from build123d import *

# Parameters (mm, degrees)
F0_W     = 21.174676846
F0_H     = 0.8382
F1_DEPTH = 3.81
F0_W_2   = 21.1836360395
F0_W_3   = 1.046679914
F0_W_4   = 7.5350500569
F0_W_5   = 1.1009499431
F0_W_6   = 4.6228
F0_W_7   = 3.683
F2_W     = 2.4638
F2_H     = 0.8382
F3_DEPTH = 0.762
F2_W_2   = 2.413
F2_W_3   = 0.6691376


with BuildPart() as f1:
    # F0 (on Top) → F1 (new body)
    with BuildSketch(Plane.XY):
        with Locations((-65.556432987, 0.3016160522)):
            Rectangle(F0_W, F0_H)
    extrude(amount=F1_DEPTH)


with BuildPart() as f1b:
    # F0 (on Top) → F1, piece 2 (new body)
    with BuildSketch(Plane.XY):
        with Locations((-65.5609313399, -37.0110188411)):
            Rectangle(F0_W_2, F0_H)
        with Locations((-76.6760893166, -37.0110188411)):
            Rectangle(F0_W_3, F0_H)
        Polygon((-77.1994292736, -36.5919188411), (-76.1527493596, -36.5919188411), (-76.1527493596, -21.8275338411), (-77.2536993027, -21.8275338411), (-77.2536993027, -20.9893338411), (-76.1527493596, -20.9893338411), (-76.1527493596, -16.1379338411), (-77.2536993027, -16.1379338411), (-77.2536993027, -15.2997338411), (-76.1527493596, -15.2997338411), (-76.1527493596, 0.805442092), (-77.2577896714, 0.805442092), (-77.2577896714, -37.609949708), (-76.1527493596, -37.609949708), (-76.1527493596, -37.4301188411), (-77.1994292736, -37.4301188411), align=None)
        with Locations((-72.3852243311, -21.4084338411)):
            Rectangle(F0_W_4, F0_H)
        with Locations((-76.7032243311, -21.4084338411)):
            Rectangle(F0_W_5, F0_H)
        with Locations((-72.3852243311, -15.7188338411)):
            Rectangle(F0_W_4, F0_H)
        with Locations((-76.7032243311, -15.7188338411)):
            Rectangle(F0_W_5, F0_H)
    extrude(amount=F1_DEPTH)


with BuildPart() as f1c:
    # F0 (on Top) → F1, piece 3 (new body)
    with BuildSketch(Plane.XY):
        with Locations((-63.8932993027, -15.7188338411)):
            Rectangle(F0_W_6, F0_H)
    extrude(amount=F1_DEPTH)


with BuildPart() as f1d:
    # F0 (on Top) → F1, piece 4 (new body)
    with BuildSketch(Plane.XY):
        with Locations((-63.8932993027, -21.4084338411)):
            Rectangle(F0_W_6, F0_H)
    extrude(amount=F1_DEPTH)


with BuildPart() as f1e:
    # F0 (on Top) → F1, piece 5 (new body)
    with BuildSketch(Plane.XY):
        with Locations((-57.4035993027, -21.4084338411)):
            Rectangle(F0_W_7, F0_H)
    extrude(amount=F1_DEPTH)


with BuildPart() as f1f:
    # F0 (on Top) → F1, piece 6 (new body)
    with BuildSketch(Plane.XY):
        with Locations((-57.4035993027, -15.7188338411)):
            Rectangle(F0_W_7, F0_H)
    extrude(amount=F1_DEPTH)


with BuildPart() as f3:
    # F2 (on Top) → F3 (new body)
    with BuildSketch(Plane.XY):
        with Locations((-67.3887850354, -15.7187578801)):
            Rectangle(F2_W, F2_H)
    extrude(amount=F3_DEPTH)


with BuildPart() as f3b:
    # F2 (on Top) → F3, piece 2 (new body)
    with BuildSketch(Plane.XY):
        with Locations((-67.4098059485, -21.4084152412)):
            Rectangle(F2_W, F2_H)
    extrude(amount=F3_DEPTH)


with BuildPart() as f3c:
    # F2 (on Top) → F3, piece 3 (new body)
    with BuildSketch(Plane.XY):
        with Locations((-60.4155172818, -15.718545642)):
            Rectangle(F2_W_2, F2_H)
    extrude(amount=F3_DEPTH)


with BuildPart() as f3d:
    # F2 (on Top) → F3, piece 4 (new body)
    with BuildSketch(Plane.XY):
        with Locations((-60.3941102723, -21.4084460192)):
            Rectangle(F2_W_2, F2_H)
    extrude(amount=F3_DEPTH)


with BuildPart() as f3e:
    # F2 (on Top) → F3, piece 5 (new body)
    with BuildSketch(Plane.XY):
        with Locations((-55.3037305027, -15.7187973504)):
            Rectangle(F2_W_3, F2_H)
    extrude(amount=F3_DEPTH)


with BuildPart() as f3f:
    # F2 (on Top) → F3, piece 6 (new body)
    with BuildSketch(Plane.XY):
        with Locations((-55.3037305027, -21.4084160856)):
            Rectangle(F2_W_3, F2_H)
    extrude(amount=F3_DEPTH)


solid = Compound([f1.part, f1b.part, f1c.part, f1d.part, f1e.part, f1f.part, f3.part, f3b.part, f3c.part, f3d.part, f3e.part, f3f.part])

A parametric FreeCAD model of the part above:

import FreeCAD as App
import Part
import Sketcher
Q = App.Units.Quantity

doc = App.newDocument("Part")
params = doc.addObject("Spreadsheet::Sheet", "Params")
for row, (alias, value) in enumerate([
    ("sketch1_height", "0.033 in"),
    ("pad1_length", "0.15 in"),
    ("sketch2_height", "0.033 in"),
    ("sketch2_height2", "0.191 in"),
    ("pad2_length", "0.15 in"),
    ("sketch3_width", "0.182 in"),
    ("sketch3_height", "0.033 in"),
    ("pad3_length", "0.15 in"),
    ("sketch4_width", "0.182 in"),
    ("sketch4_height", "0.033 in"),
    ("pad4_length", "0.15 in"),
    ("sketch5_width", "0.145 in"),
    ("sketch5_height", "0.033 in"),
    ("pad5_length", "0.15 in"),
    ("sketch6_width", "0.145 in"),
    ("sketch6_height", "0.033 in"),
    ("pad6_length", "0.15 in"),
    ("sketch7_width", "0.097 in"),
    ("sketch7_height", "0.033 in"),
    ("pad7_length", "0.03 in"),
    ("sketch8_width", "0.097 in"),
    ("sketch8_height", "0.033 in"),
    ("pad8_length", "0.03 in"),
    ("sketch9_width", "0.095 in"),
    ("sketch9_height", "0.033 in"),
    ("pad9_length", "0.03 in"),
    ("sketch10_width", "0.095 in"),
    ("sketch10_height", "0.033 in"),
    ("pad10_length", "0.03 in"),
    ("sketch11_height", "0.033 in"),
    ("pad11_length", "0.03 in"),
    ("sketch12_height", "0.033 in"),
    ("pad12_length", "0.03 in"),
], start=1):
    params.set(f"A{row}", alias)
    params.set(f"B{row}", "=" + value)
    params.setAlias(f"B{row}", alias)

body = doc.addObject("PartDesign::Body", "Body")

# Sketch on XY plane
sketch1 = body.newObject("Sketcher::SketchObject", "Sketch")
sketch1.AttachmentSupport = (doc.getObject("XY_Plane"), [""])
sketch1.MapMode = "FlatFace"
sketch1.addGeometry([
    Part.LineSegment(App.Vector(-76.1, 0.7, 0), App.Vector(-76.1, -0.1, 0)),
    Part.LineSegment(App.Vector(-76.1, -0.1, 0), App.Vector(-55, -0.1, 0)),
    Part.LineSegment(App.Vector(-55, -0.1, 0), App.Vector(-55, 0.7, 0)),
    Part.LineSegment(App.Vector(-55, 0.7, 0), App.Vector(-76.1, 0.7, 0)),
], False)
sketch1.addConstraint([
    Sketcher.Constraint("Coincident", 0, 2, 1, 1),
    Sketcher.Constraint("Coincident", 1, 2, 2, 1),
    Sketcher.Constraint("Coincident", 2, 2, 3, 1),
    Sketcher.Constraint("Coincident", 3, 2, 0, 1),
    Sketcher.Constraint("Vertical", 0),
    Sketcher.Constraint("Horizontal", 1),
    Sketcher.Constraint("Vertical", 2),
    Sketcher.Constraint("Horizontal", 3),
    Sketcher.Constraint("DistanceY", 0, 2, 0, 1, Q("0.033 in")),
    Sketcher.Constraint("DistanceX", 1, 1, 1, 2, Q("21.174677 mm")),
    Sketcher.Constraint("DistanceX", 0, 2, -1, 1, Q("76.143771 mm")),
    Sketcher.Constraint("DistanceY", 0, 2, -1, 1, Q("0.117484 mm")),
])
sketch1.setExpression("Constraints[8]", "Params.sketch1_height")
pad1 = body.newObject("PartDesign::Pad", "Pad")
pad1.Profile = sketch1
pad1.setExpression("Length", "Params.pad1_length")
body2 = doc.addObject("PartDesign::Body", "Body001")

# Sketch on XY plane
sketch2 = body2.newObject("Sketcher::SketchObject", "Sketch001")
sketch2.AttachmentSupport = (doc.getObject("XY_Plane001"), [""])
sketch2.MapMode = "FlatFace"
sketch2.addGeometry([
    Part.LineSegment(App.Vector(-54.97, -37.43, 0), App.Vector(-54.97, -36.59, 0)),  # 0
    Part.LineSegment(App.Vector(-54.97, -36.59, 0), App.Vector(-76.15, -36.59, 0)),  # 1
    Part.LineSegment(App.Vector(-76.15, -36.59, 0), App.Vector(-76.15, -21.83, 0)),  # 2
    Part.LineSegment(App.Vector(-76.15, -21.83, 0), App.Vector(-68.62, -21.83, 0)),  # 3
    Part.LineSegment(App.Vector(-68.62, -21.83, 0), App.Vector(-68.62, -20.99, 0)),  # 4
    Part.LineSegment(App.Vector(-68.62, -20.99, 0), App.Vector(-76.15, -20.99, 0)),  # 5
    Part.LineSegment(App.Vector(-76.15, -20.99, 0), App.Vector(-76.15, -16.14, 0)),  # 6
    Part.LineSegment(App.Vector(-76.15, -16.14, 0), App.Vector(-68.62, -16.14, 0)),  # 7
    Part.LineSegment(App.Vector(-68.62, -16.14, 0), App.Vector(-68.62, -15.3, 0)),  # 8
    Part.LineSegment(App.Vector(-68.62, -15.3, 0), App.Vector(-76.15, -15.3, 0)),  # 9
    Part.LineSegment(App.Vector(-76.15, -15.3, 0), App.Vector(-76.15, 0.81, 0)),  # 10
    Part.LineSegment(App.Vector(-76.15, 0.81, 0), App.Vector(-77.26, 0.81, 0)),  # 11
    Part.LineSegment(App.Vector(-77.26, 0.81, 0), App.Vector(-77.26, -37.61, 0)),  # 12
    Part.LineSegment(App.Vector(-77.26, -37.61, 0), App.Vector(-76.15, -37.61, 0)),  # 13
    Part.LineSegment(App.Vector(-76.15, -37.61, 0), App.Vector(-76.15, -37.43, 0)),  # 14
    Part.LineSegment(App.Vector(-76.15, -37.43, 0), App.Vector(-54.97, -37.43, 0)),  # 15
], False)
sketch2.addConstraint([
    Sketcher.Constraint("Coincident", 0, 2, 1, 1),
    Sketcher.Constraint("Coincident", 1, 2, 2, 1),
    Sketcher.Constraint("Coincident", 2, 2, 3, 1),
    Sketcher.Constraint("Coincident", 3, 2, 4, 1),
    Sketcher.Constraint("Coincident", 4, 2, 5, 1),
    Sketcher.Constraint("Coincident", 5, 2, 6, 1),
    Sketcher.Constraint("Coincident", 6, 2, 7, 1),
    Sketcher.Constraint("Coincident", 7, 2, 8, 1),
    Sketcher.Constraint("Coincident", 8, 2, 9, 1),
    Sketcher.Constraint("Coincident", 9, 2, 10, 1),
    Sketcher.Constraint("Coincident", 10, 2, 11, 1),
    Sketcher.Constraint("Coincident", 11, 2, 12, 1),
    Sketcher.Constraint("Coincident", 12, 2, 13, 1),
    Sketcher.Constraint("Coincident", 13, 2, 14, 1),
    Sketcher.Constraint("Coincident", 14, 2, 15, 1),
    Sketcher.Constraint("Coincident", 15, 2, 0, 1),
    Sketcher.Constraint("Vertical", 0),
    Sketcher.Constraint("Horizontal", 1),
    Sketcher.Constraint("Vertical", 2),
    Sketcher.Constraint("Horizontal", 3),
    Sketcher.Constraint("Vertical", 4),
    Sketcher.Constraint("Horizontal", 5),
    Sketcher.Constraint("Vertical", 6),
    Sketcher.Constraint("Horizontal", 7),
    Sketcher.Constraint("Vertical", 8),
    Sketcher.Constraint("Horizontal", 9),
    Sketcher.Constraint("Vertical", 10),
    Sketcher.Constraint("Horizontal", 11),
    Sketcher.Constraint("Vertical", 12),
    Sketcher.Constraint("Horizontal", 13),
    Sketcher.Constraint("Vertical", 14),
    Sketcher.Constraint("Horizontal", 15),
    Sketcher.Constraint("Vertical", 2, 2, 5, 2),
    Sketcher.Constraint("Vertical", 4, 2, 7, 2),
    Sketcher.Constraint("Vertical", 6, 2, 9, 2),
    Sketcher.Constraint("Vertical", 10, 2, 13, 2),
    Sketcher.Constraint("Equal", 0, 4),
    Sketcher.Constraint("Equal", 4, 8),
    Sketcher.Constraint("DistanceY", 0, 1, 0, 2, Q("0.033 in")),
    Sketcher.Constraint("DistanceY", 6, 1, 6, 2, Q("0.191 in")),
    Sketcher.Constraint("DistanceX", 3, 1, 3, 2, Q("7.53505 mm")),
    Sketcher.Constraint("DistanceX", 11, 2, 11, 1, Q("1.10504 mm")),
    Sketcher.Constraint("DistanceY", 12, 2, 12, 1, Q("38.415392 mm")),
    Sketcher.Constraint("DistanceY", 14, 1, 14, 2, Q("0.179831 mm")),
    Sketcher.Constraint("DistanceX", 3, 2, -1, 1, Q("68.617699 mm")),
    Sketcher.Constraint("DistanceX", 1, 2, 1, 1, Q("21.183636 mm")),
    Sketcher.Constraint("DistanceY", 2, 1, 2, 2, Q("14.764385 mm")),
    Sketcher.Constraint("DistanceY", 0, 2, -1, 1, Q("36.591919 mm")),
])
sketch2.setExpression("Constraints[38]", "Params.sketch2_height")
sketch2.setExpression("Constraints[39]", "Params.sketch2_height2")
pad2 = body2.newObject("PartDesign::Pad", "Pad001")
pad2.Profile = sketch2
pad2.setExpression("Length", "Params.pad2_length")
body3 = doc.addObject("PartDesign::Body", "Body002")

# Sketch on XY plane
sketch3 = body3.newObject("Sketcher::SketchObject", "Sketch002")
sketch3.AttachmentSupport = (doc.getObject("XY_Plane002"), [""])
sketch3.MapMode = "FlatFace"
sketch3.addGeometry([
    Part.LineSegment(App.Vector(-66.2, -15.3, 0), App.Vector(-66.2, -16.1, 0)),
    Part.LineSegment(App.Vector(-66.2, -16.1, 0), App.Vector(-61.6, -16.1, 0)),
    Part.LineSegment(App.Vector(-61.6, -16.1, 0), App.Vector(-61.6, -15.3, 0)),
    Part.LineSegment(App.Vector(-61.6, -15.3, 0), App.Vector(-66.2, -15.3, 0)),
], False)
sketch3.addConstraint([
    Sketcher.Constraint("Coincident", 0, 2, 1, 1),
    Sketcher.Constraint("Coincident", 1, 2, 2, 1),
    Sketcher.Constraint("Coincident", 2, 2, 3, 1),
    Sketcher.Constraint("Coincident", 3, 2, 0, 1),
    Sketcher.Constraint("Vertical", 0),
    Sketcher.Constraint("Horizontal", 1),
    Sketcher.Constraint("Vertical", 2),
    Sketcher.Constraint("Horizontal", 3),
    Sketcher.Constraint("DistanceX", 1, 1, 1, 2, Q("0.182 in")),
    Sketcher.Constraint("DistanceY", 0, 2, 0, 1, Q("0.033 in")),
    Sketcher.Constraint("DistanceX", 0, 2, -1, 1, Q("66.204699 mm")),
    Sketcher.Constraint("DistanceY", 0, 2, -1, 1, Q("16.137934 mm")),
])
sketch3.setExpression("Constraints[8]", "Params.sketch3_width")
sketch3.setExpression("Constraints[9]", "Params.sketch3_height")
pad3 = body3.newObject("PartDesign::Pad", "Pad002")
pad3.Profile = sketch3
pad3.setExpression("Length", "Params.pad3_length")
body4 = doc.addObject("PartDesign::Body", "Body003")

# Sketch on XY plane
sketch4 = body4.newObject("Sketcher::SketchObject", "Sketch003")
sketch4.AttachmentSupport = (doc.getObject("XY_Plane003"), [""])
sketch4.MapMode = "FlatFace"
sketch4.addGeometry([
    Part.LineSegment(App.Vector(-66.2, -21, 0), App.Vector(-66.2, -21.8, 0)),
    Part.LineSegment(App.Vector(-66.2, -21.8, 0), App.Vector(-61.6, -21.8, 0)),
    Part.LineSegment(App.Vector(-61.6, -21.8, 0), App.Vector(-61.6, -21, 0)),
    Part.LineSegment(App.Vector(-61.6, -21, 0), App.Vector(-66.2, -21, 0)),
], False)
sketch4.addConstraint([
    Sketcher.Constraint("Coincident", 0, 2, 1, 1),
    Sketcher.Constraint("Coincident", 1, 2, 2, 1),
    Sketcher.Constraint("Coincident", 2, 2, 3, 1),
    Sketcher.Constraint("Coincident", 3, 2, 0, 1),
    Sketcher.Constraint("Vertical", 0),
    Sketcher.Constraint("Horizontal", 1),
    Sketcher.Constraint("Vertical", 2),
    Sketcher.Constraint("Horizontal", 3),
    Sketcher.Constraint("DistanceX", 1, 1, 1, 2, Q("0.182 in")),
    Sketcher.Constraint("DistanceY", 0, 2, 0, 1, Q("0.033 in")),
    Sketcher.Constraint("DistanceX", 0, 2, -1, 1, Q("66.204699 mm")),
    Sketcher.Constraint("DistanceY", 0, 2, -1, 1, Q("21.827534 mm")),
])
sketch4.setExpression("Constraints[8]", "Params.sketch4_width")
sketch4.setExpression("Constraints[9]", "Params.sketch4_height")
pad4 = body4.newObject("PartDesign::Pad", "Pad003")
pad4.Profile = sketch4
pad4.setExpression("Length", "Params.pad4_length")
body5 = doc.addObject("PartDesign::Body", "Body004")

# Sketch on XY plane
sketch5 = body5.newObject("Sketcher::SketchObject", "Sketch004")
sketch5.AttachmentSupport = (doc.getObject("XY_Plane004"), [""])
sketch5.MapMode = "FlatFace"
sketch5.addGeometry([
    Part.LineSegment(App.Vector(-59.2, -21, 0), App.Vector(-59.2, -21.8, 0)),
    Part.LineSegment(App.Vector(-59.2, -21.8, 0), App.Vector(-55.6, -21.8, 0)),
    Part.LineSegment(App.Vector(-55.6, -21.8, 0), App.Vector(-55.6, -21, 0)),
    Part.LineSegment(App.Vector(-55.6, -21, 0), App.Vector(-59.2, -21, 0)),
], False)
sketch5.addConstraint([
    Sketcher.Constraint("Coincident", 0, 2, 1, 1),
    Sketcher.Constraint("Coincident", 1, 2, 2, 1),
    Sketcher.Constraint("Coincident", 2, 2, 3, 1),
    Sketcher.Constraint("Coincident", 3, 2, 0, 1),
    Sketcher.Constraint("Vertical", 0),
    Sketcher.Constraint("Horizontal", 1),
    Sketcher.Constraint("Vertical", 2),
    Sketcher.Constraint("Horizontal", 3),
    Sketcher.Constraint("DistanceX", 1, 1, 1, 2, Q("0.145 in")),
    Sketcher.Constraint("DistanceY", 0, 2, 0, 1, Q("0.033 in")),
    Sketcher.Constraint("DistanceX", 0, 2, -1, 1, Q("59.245099 mm")),
    Sketcher.Constraint("DistanceY", 0, 2, -1, 1, Q("21.827534 mm")),
])
sketch5.setExpression("Constraints[8]", "Params.sketch5_width")
sketch5.setExpression("Constraints[9]", "Params.sketch5_height")
pad5 = body5.newObject("PartDesign::Pad", "Pad004")
pad5.Profile = sketch5
pad5.setExpression("Length", "Params.pad5_length")
body6 = doc.addObject("PartDesign::Body", "Body005")

# Sketch on XY plane
sketch6 = body6.newObject("Sketcher::SketchObject", "Sketch005")
sketch6.AttachmentSupport = (doc.getObject("XY_Plane005"), [""])
sketch6.MapMode = "FlatFace"
sketch6.addGeometry([
    Part.LineSegment(App.Vector(-59.2, -15.3, 0), App.Vector(-59.2, -16.1, 0)),
    Part.LineSegment(App.Vector(-59.2, -16.1, 0), App.Vector(-55.6, -16.1, 0)),
    Part.LineSegment(App.Vector(-55.6, -16.1, 0), App.Vector(-55.6, -15.3, 0)),
    Part.LineSegment(App.Vector(-55.6, -15.3, 0), App.Vector(-59.2, -15.3, 0)),
], False)
sketch6.addConstraint([
    Sketcher.Constraint("Coincident", 0, 2, 1, 1),
    Sketcher.Constraint("Coincident", 1, 2, 2, 1),
    Sketcher.Constraint("Coincident", 2, 2, 3, 1),
    Sketcher.Constraint("Coincident", 3, 2, 0, 1),
    Sketcher.Constraint("Vertical", 0),
    Sketcher.Constraint("Horizontal", 1),
    Sketcher.Constraint("Vertical", 2),
    Sketcher.Constraint("Horizontal", 3),
    Sketcher.Constraint("DistanceX", 1, 1, 1, 2, Q("0.145 in")),
    Sketcher.Constraint("DistanceY", 0, 2, 0, 1, Q("0.033 in")),
    Sketcher.Constraint("DistanceX", 0, 2, -1, 1, Q("59.245099 mm")),
    Sketcher.Constraint("DistanceY", 0, 2, -1, 1, Q("16.137934 mm")),
])
sketch6.setExpression("Constraints[8]", "Params.sketch6_width")
sketch6.setExpression("Constraints[9]", "Params.sketch6_height")
pad6 = body6.newObject("PartDesign::Pad", "Pad005")
pad6.Profile = sketch6
pad6.setExpression("Length", "Params.pad6_length")
body7 = doc.addObject("PartDesign::Body", "Body006")

# Sketch on XY plane
sketch7 = body7.newObject("Sketcher::SketchObject", "Sketch006")
sketch7.AttachmentSupport = (doc.getObject("XY_Plane006"), [""])
sketch7.MapMode = "FlatFace"
sketch7.addGeometry([
    Part.LineSegment(App.Vector(-68.6, -15.3, 0), App.Vector(-68.6, -16.1, 0)),
    Part.LineSegment(App.Vector(-68.6, -16.1, 0), App.Vector(-66.2, -16.1, 0)),
    Part.LineSegment(App.Vector(-66.2, -16.1, 0), App.Vector(-66.2, -15.3, 0)),
    Part.LineSegment(App.Vector(-66.2, -15.3, 0), App.Vector(-68.6, -15.3, 0)),
], False)
sketch7.addConstraint([
    Sketcher.Constraint("Coincident", 0, 2, 1, 1),
    Sketcher.Constraint("Coincident", 1, 2, 2, 1),
    Sketcher.Constraint("Coincident", 2, 2, 3, 1),
    Sketcher.Constraint("Coincident", 3, 2, 0, 1),
    Sketcher.Constraint("Vertical", 0),
    Sketcher.Constraint("Horizontal", 1),
    Sketcher.Constraint("Vertical", 2),
    Sketcher.Constraint("Horizontal", 3),
    Sketcher.Constraint("DistanceX", 1, 1, 1, 2, Q("0.097 in")),
    Sketcher.Constraint("DistanceY", 0, 2, 0, 1, Q("0.033 in")),
    Sketcher.Constraint("DistanceX", 0, 2, -1, 1, Q("68.620685 mm")),
    Sketcher.Constraint("DistanceY", 0, 2, -1, 1, Q("16.137858 mm")),
])
sketch7.setExpression("Constraints[8]", "Params.sketch7_width")
sketch7.setExpression("Constraints[9]", "Params.sketch7_height")
pad7 = body7.newObject("PartDesign::Pad", "Pad006")
pad7.Profile = sketch7
pad7.setExpression("Length", "Params.pad7_length")
body8 = doc.addObject("PartDesign::Body", "Body007")

# Sketch on XY plane
sketch8 = body8.newObject("Sketcher::SketchObject", "Sketch007")
sketch8.AttachmentSupport = (doc.getObject("XY_Plane007"), [""])
sketch8.MapMode = "FlatFace"
sketch8.addGeometry([
    Part.LineSegment(App.Vector(-68.6, -21, 0), App.Vector(-68.6, -21.8, 0)),
    Part.LineSegment(App.Vector(-68.6, -21.8, 0), App.Vector(-66.2, -21.8, 0)),
    Part.LineSegment(App.Vector(-66.2, -21.8, 0), App.Vector(-66.2, -21, 0)),
    Part.LineSegment(App.Vector(-66.2, -21, 0), App.Vector(-68.6, -21, 0)),
], False)
sketch8.addConstraint([
    Sketcher.Constraint("Coincident", 0, 2, 1, 1),
    Sketcher.Constraint("Coincident", 1, 2, 2, 1),
    Sketcher.Constraint("Coincident", 2, 2, 3, 1),
    Sketcher.Constraint("Coincident", 3, 2, 0, 1),
    Sketcher.Constraint("Vertical", 0),
    Sketcher.Constraint("Horizontal", 1),
    Sketcher.Constraint("Vertical", 2),
    Sketcher.Constraint("Horizontal", 3),
    Sketcher.Constraint("DistanceX", 1, 1, 1, 2, Q("0.097 in")),
    Sketcher.Constraint("DistanceY", 0, 2, 0, 1, Q("0.033 in")),
    Sketcher.Constraint("DistanceX", 0, 2, -1, 1, Q("68.641706 mm")),
    Sketcher.Constraint("DistanceY", 0, 2, -1, 1, Q("21.827515 mm")),
])
sketch8.setExpression("Constraints[8]", "Params.sketch8_width")
sketch8.setExpression("Constraints[9]", "Params.sketch8_height")
pad8 = body8.newObject("PartDesign::Pad", "Pad007")
pad8.Profile = sketch8
pad8.setExpression("Length", "Params.pad8_length")
body9 = doc.addObject("PartDesign::Body", "Body008")

# Sketch on XY plane
sketch9 = body9.newObject("Sketcher::SketchObject", "Sketch008")
sketch9.AttachmentSupport = (doc.getObject("XY_Plane008"), [""])
sketch9.MapMode = "FlatFace"
sketch9.addGeometry([
    Part.LineSegment(App.Vector(-61.6, -15.3, 0), App.Vector(-61.6, -16.1, 0)),
    Part.LineSegment(App.Vector(-61.6, -16.1, 0), App.Vector(-59.2, -16.1, 0)),
    Part.LineSegment(App.Vector(-59.2, -16.1, 0), App.Vector(-59.2, -15.3, 0)),
    Part.LineSegment(App.Vector(-59.2, -15.3, 0), App.Vector(-61.6, -15.3, 0)),
], False)
sketch9.addConstraint([
    Sketcher.Constraint("Coincident", 0, 2, 1, 1),
    Sketcher.Constraint("Coincident", 1, 2, 2, 1),
    Sketcher.Constraint("Coincident", 2, 2, 3, 1),
    Sketcher.Constraint("Coincident", 3, 2, 0, 1),
    Sketcher.Constraint("Vertical", 0),
    Sketcher.Constraint("Horizontal", 1),
    Sketcher.Constraint("Vertical", 2),
    Sketcher.Constraint("Horizontal", 3),
    Sketcher.Constraint("DistanceX", 1, 1, 1, 2, Q("0.095 in")),
    Sketcher.Constraint("DistanceY", 0, 2, 0, 1, Q("0.033 in")),
    Sketcher.Constraint("DistanceX", 0, 2, -1, 1, Q("61.622017 mm")),
    Sketcher.Constraint("DistanceY", 0, 2, -1, 1, Q("16.137646 mm")),
])
sketch9.setExpression("Constraints[8]", "Params.sketch9_width")
sketch9.setExpression("Constraints[9]", "Params.sketch9_height")
pad9 = body9.newObject("PartDesign::Pad", "Pad008")
pad9.Profile = sketch9
pad9.setExpression("Length", "Params.pad9_length")
body10 = doc.addObject("PartDesign::Body", "Body009")

# Sketch on XY plane
sketch10 = body10.newObject("Sketcher::SketchObject", "Sketch009")
sketch10.AttachmentSupport = (doc.getObject("XY_Plane009"), [""])
sketch10.MapMode = "FlatFace"
sketch10.addGeometry([
    Part.LineSegment(App.Vector(-61.6, -21, 0), App.Vector(-61.6, -21.8, 0)),
    Part.LineSegment(App.Vector(-61.6, -21.8, 0), App.Vector(-59.2, -21.8, 0)),
    Part.LineSegment(App.Vector(-59.2, -21.8, 0), App.Vector(-59.2, -21, 0)),
    Part.LineSegment(App.Vector(-59.2, -21, 0), App.Vector(-61.6, -21, 0)),
], False)
sketch10.addConstraint([
    Sketcher.Constraint("Coincident", 0, 2, 1, 1),
    Sketcher.Constraint("Coincident", 1, 2, 2, 1),
    Sketcher.Constraint("Coincident", 2, 2, 3, 1),
    Sketcher.Constraint("Coincident", 3, 2, 0, 1),
    Sketcher.Constraint("Vertical", 0),
    Sketcher.Constraint("Horizontal", 1),
    Sketcher.Constraint("Vertical", 2),
    Sketcher.Constraint("Horizontal", 3),
    Sketcher.Constraint("DistanceX", 1, 1, 1, 2, Q("0.095 in")),
    Sketcher.Constraint("DistanceY", 0, 2, 0, 1, Q("0.033 in")),
    Sketcher.Constraint("DistanceX", 0, 2, -1, 1, Q("61.60061 mm")),
    Sketcher.Constraint("DistanceY", 0, 2, -1, 1, Q("21.827546 mm")),
])
sketch10.setExpression("Constraints[8]", "Params.sketch10_width")
sketch10.setExpression("Constraints[9]", "Params.sketch10_height")
pad10 = body10.newObject("PartDesign::Pad", "Pad009")
pad10.Profile = sketch10
pad10.setExpression("Length", "Params.pad10_length")
body11 = doc.addObject("PartDesign::Body", "Body010")

# Sketch on XY plane
sketch11 = body11.newObject("Sketcher::SketchObject", "Sketch010")
sketch11.AttachmentSupport = (doc.getObject("XY_Plane010"), [""])
sketch11.MapMode = "FlatFace"
sketch11.addGeometry([
    Part.LineSegment(App.Vector(-55.6, -15.3, 0), App.Vector(-55.6, -16.1, 0)),
    Part.LineSegment(App.Vector(-55.6, -16.1, 0), App.Vector(-55, -16.1, 0)),
    Part.LineSegment(App.Vector(-55, -16.1, 0), App.Vector(-55, -15.3, 0)),
    Part.LineSegment(App.Vector(-55, -15.3, 0), App.Vector(-55.6, -15.3, 0)),
], False)
sketch11.addConstraint([
    Sketcher.Constraint("Coincident", 0, 2, 1, 1),
    Sketcher.Constraint("Coincident", 1, 2, 2, 1),
    Sketcher.Constraint("Coincident", 2, 2, 3, 1),
    Sketcher.Constraint("Coincident", 3, 2, 0, 1),
    Sketcher.Constraint("Vertical", 0),
    Sketcher.Constraint("Horizontal", 1),
    Sketcher.Constraint("Vertical", 2),
    Sketcher.Constraint("Horizontal", 3),
    Sketcher.Constraint("DistanceY", 0, 2, 0, 1, Q("0.033 in")),
    Sketcher.Constraint("DistanceX", 0, 2, -1, 1, Q("55.638299 mm")),
    Sketcher.Constraint("DistanceX", 1, 1, 1, 2, Q("0.669138 mm")),
    Sketcher.Constraint("DistanceY", 0, 2, -1, 1, Q("16.137897 mm")),
])
sketch11.setExpression("Constraints[8]", "Params.sketch11_height")
pad11 = body11.newObject("PartDesign::Pad", "Pad010")
pad11.Profile = sketch11
pad11.setExpression("Length", "Params.pad11_length")
body12 = doc.addObject("PartDesign::Body", "Body011")

# Sketch on XY plane
sketch12 = body12.newObject("Sketcher::SketchObject", "Sketch011")
sketch12.AttachmentSupport = (doc.getObject("XY_Plane011"), [""])
sketch12.MapMode = "FlatFace"
sketch12.addGeometry([
    Part.LineSegment(App.Vector(-55.6, -21, 0), App.Vector(-55.6, -21.8, 0)),
    Part.LineSegment(App.Vector(-55.6, -21.8, 0), App.Vector(-55, -21.8, 0)),
    Part.LineSegment(App.Vector(-55, -21.8, 0), App.Vector(-55, -21, 0)),
    Part.LineSegment(App.Vector(-55, -21, 0), App.Vector(-55.6, -21, 0)),
], False)
sketch12.addConstraint([
    Sketcher.Constraint("Coincident", 0, 2, 1, 1),
    Sketcher.Constraint("Coincident", 1, 2, 2, 1),
    Sketcher.Constraint("Coincident", 2, 2, 3, 1),
    Sketcher.Constraint("Coincident", 3, 2, 0, 1),
    Sketcher.Constraint("Vertical", 0),
    Sketcher.Constraint("Horizontal", 1),
    Sketcher.Constraint("Vertical", 2),
    Sketcher.Constraint("Horizontal", 3),
    Sketcher.Constraint("DistanceY", 0, 2, 0, 1, Q("0.033 in")),
    Sketcher.Constraint("DistanceX", 0, 2, -1, 1, Q("55.638299 mm")),
    Sketcher.Constraint("DistanceX", 1, 1, 1, 2, Q("0.669138 mm")),
    Sketcher.Constraint("DistanceY", 0, 2, -1, 1, Q("21.827516 mm")),
])
sketch12.setExpression("Constraints[8]", "Params.sketch12_height")
pad12 = body12.newObject("PartDesign::Pad", "Pad011")
pad12.Profile = sketch12
pad12.setExpression("Length", "Params.pad12_length")

doc.recompute()
